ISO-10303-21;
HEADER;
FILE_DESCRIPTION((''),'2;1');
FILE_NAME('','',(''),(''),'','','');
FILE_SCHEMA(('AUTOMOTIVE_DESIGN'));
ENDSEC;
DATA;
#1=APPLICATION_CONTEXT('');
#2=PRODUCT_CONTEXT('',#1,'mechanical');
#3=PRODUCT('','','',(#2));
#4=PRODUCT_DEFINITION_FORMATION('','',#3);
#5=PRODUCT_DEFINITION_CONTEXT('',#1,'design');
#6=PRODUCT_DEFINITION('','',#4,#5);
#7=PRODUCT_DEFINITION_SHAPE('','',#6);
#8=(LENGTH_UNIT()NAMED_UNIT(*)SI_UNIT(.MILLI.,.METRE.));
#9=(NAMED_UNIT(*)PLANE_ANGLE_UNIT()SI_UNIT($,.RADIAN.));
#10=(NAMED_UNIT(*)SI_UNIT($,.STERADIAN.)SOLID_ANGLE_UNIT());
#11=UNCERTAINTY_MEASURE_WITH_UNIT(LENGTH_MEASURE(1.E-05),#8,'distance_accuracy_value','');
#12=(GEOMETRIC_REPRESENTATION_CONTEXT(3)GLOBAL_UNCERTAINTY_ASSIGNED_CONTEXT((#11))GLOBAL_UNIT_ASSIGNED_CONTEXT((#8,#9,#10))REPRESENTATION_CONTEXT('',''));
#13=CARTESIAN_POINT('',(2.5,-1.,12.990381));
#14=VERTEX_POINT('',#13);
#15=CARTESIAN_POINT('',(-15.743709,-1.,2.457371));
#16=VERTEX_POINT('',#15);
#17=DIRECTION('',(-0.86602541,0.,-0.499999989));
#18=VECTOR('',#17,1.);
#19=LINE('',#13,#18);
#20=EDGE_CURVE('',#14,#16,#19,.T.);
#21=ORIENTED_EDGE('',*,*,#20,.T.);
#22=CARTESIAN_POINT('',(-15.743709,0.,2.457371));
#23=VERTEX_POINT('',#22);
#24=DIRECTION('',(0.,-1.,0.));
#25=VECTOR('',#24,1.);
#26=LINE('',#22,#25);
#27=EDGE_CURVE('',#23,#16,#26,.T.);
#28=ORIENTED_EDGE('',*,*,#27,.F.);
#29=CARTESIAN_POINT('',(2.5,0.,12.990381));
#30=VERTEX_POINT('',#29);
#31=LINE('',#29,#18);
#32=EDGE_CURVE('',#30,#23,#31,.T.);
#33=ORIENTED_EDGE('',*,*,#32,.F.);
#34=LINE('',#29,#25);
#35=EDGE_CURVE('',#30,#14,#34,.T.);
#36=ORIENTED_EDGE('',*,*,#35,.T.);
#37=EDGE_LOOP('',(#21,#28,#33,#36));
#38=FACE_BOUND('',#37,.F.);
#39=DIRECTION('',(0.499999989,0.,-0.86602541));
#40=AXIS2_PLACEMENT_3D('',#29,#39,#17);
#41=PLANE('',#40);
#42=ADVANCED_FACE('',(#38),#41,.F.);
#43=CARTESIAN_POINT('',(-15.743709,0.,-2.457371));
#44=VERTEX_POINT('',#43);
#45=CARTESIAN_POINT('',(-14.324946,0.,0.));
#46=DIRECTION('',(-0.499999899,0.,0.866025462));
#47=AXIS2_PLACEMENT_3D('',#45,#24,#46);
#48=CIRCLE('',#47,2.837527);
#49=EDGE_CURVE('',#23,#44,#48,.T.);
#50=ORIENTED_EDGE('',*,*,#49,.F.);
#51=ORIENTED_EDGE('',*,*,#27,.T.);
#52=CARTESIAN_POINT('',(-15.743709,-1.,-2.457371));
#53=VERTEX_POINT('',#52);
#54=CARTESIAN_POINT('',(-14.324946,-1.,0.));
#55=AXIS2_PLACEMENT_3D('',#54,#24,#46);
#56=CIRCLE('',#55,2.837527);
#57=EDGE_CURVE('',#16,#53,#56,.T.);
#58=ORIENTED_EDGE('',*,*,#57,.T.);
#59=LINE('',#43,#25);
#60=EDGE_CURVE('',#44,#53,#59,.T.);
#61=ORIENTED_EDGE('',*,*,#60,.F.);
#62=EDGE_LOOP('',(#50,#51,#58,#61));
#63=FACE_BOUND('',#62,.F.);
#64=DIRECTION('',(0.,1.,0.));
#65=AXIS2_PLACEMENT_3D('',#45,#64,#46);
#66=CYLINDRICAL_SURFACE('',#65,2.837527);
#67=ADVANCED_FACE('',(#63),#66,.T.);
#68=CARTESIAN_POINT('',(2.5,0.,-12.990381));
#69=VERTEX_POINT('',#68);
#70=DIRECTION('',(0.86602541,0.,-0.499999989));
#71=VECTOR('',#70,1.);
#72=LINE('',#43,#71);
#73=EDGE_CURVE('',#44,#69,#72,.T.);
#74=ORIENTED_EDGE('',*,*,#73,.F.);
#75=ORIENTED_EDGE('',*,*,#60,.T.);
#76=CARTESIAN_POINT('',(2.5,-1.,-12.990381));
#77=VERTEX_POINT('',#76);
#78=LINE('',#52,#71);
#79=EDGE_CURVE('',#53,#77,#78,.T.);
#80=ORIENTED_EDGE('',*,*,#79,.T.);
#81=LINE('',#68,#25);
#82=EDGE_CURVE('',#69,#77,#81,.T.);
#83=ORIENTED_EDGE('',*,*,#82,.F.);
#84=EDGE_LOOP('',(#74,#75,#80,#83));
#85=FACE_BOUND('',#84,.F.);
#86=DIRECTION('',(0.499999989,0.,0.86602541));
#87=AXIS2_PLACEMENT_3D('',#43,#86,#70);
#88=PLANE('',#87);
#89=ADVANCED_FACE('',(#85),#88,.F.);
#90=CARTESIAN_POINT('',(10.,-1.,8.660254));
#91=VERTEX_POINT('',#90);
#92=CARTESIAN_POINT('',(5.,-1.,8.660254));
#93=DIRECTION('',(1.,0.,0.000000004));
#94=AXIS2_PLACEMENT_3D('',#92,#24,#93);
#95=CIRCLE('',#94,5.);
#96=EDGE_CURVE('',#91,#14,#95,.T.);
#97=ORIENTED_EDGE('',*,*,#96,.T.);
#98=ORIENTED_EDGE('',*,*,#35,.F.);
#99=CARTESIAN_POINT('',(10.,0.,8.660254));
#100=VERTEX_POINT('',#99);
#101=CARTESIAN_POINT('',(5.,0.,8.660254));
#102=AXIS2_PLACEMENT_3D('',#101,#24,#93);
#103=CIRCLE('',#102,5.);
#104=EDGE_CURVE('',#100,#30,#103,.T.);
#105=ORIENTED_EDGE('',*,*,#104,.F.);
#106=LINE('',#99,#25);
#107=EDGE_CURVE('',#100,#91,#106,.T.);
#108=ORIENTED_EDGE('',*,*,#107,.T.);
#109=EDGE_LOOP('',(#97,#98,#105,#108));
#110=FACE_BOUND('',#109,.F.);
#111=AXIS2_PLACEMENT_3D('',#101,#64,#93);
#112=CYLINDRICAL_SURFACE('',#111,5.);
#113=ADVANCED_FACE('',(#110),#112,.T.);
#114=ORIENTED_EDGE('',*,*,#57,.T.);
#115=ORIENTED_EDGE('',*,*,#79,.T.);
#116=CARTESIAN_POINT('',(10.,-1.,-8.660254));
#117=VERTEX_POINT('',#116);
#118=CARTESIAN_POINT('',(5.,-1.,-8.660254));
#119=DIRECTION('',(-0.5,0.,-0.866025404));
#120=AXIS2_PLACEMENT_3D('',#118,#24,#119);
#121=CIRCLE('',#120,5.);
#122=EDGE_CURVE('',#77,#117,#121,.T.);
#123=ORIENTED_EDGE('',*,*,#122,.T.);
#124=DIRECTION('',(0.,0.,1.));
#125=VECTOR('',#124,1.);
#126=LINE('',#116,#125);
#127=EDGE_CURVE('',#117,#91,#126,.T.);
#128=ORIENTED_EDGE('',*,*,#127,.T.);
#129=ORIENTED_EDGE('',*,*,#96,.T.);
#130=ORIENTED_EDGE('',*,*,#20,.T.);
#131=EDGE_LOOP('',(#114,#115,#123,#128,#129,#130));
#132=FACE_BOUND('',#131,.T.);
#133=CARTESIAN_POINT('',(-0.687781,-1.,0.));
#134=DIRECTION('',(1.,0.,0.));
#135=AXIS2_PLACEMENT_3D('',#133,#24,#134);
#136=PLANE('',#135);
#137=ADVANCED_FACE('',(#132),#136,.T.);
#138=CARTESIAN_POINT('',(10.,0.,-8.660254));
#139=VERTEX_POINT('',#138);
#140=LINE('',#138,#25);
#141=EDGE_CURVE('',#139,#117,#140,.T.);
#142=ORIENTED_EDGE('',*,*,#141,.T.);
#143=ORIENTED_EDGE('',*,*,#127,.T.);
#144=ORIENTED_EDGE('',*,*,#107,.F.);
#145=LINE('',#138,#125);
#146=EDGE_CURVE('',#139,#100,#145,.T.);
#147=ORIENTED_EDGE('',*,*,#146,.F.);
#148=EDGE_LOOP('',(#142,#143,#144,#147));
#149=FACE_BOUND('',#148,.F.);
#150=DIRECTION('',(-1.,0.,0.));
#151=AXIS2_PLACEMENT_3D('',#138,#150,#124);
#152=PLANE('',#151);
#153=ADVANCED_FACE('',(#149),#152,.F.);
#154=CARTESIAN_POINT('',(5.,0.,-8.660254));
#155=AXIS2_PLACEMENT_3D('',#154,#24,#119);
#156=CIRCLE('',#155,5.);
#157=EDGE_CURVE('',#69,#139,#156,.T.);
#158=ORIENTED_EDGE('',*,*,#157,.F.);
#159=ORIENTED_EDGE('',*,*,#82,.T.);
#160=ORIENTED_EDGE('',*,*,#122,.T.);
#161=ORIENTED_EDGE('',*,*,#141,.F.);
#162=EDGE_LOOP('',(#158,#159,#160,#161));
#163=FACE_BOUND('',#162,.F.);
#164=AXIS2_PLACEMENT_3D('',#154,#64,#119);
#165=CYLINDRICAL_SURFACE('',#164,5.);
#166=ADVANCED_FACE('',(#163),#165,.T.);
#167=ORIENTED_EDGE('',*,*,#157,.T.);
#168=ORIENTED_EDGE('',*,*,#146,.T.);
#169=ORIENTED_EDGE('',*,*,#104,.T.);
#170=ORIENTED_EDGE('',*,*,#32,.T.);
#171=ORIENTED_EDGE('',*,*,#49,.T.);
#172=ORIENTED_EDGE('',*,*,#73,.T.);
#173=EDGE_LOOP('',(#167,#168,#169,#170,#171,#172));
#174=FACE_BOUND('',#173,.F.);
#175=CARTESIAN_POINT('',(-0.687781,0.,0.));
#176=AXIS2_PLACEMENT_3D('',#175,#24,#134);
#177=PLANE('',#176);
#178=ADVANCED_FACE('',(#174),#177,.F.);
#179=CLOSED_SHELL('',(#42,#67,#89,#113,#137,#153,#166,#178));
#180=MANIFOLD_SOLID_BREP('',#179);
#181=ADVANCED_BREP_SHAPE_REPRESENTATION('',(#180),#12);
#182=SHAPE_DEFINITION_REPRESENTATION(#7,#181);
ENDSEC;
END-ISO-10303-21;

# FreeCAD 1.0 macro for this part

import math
import FreeCAD as App
import Part
import Sketcher

V = App.Vector
Q = App.Units.Quantity

doc = App.newDocument("Part")
params = doc.addObject("Spreadsheet::Sheet", "Params")
for row, (alias, value) in enumerate([
    ("sketch1_radius", "5 mm"),
    ("pad1_length", "1 mm"),
], start=1):
    params.set(f"A{row}", alias)
    params.set(f"B{row}", "=" + value)
    params.setAlias(f"B{row}", alias)

body = doc.addObject("PartDesign::Body", "Body")

# Sketch on XZ plane
sketch1 = body.newObject("Sketcher::SketchObject", "Sketch")
sketch1.AttachmentSupport = (doc.getObject("XZ_Plane"), [""])
sketch1.MapMode = "FlatFace"
sketch1.addGeometry([
    Part.LineSegment(V(10, -8.660254, 0), V(10, 8.660254, 0)),  # 0
    Part.ArcOfCircle(Part.Circle(V(5, 8.660254, 0), V(0, 0, 1), 5), math.radians(0), math.radians(120)),  # 1
    Part.LineSegment(V(2.5, 12.990381, 0), V(-15.743709, 2.457371, 0)),  # 2
    Part.ArcOfCircle(Part.Circle(V(-14.324946, 0, 0), V(0, 0, 1), 2.837527), math.radians(119.999993), math.radians(240.000007)),  # 3
    Part.LineSegment(V(-15.743709, -2.457371, 0), V(2.5, -12.990381, 0)),  # 4
    Part.ArcOfCircle(Part.Circle(V(5, -8.660254, 0), V(0, 0, 1), 5), math.radians(-120), math.radians(0)),  # 5
], False)
sketch1.addConstraint([
    Sketcher.Constraint("Tangent", 0, 2, 1, 1),
    Sketcher.Constraint("Tangent", 1, 2, 2, 1),
    Sketcher.Constraint("Tangent", 2, 2, 3, 1),
    Sketcher.Constraint("Tangent", 3, 2, 4, 1),
    Sketcher.Constraint("Tangent", 4, 2, 5, 1),
    Sketcher.Constraint("Tangent", 5, 2, 0, 1),
    Sketcher.Constraint("Vertical", 0),
    Sketcher.Constraint("Equal", 1, 5),
    Sketcher.Constraint("Symmetric", 2, 2, 3, 2, -1),
    Sketcher.Constraint("Radius", 1, 5.0),
    Sketcher.Constraint("Angle", 2, Q("-150.000001 deg")),
    Sketcher.Constraint("DistanceX", -1, 1, 1, 3, 5.0),
    Sketcher.Constraint("Radius", 3, 2.837527),
    Sketcher.Constraint("DistanceY", 0, 1, 0, 2, 17.320508),
])
sketch1.setExpression("Constraints[9]", "Params.sketch1_radius")
pad1 = body.newObject("PartDesign::Pad", "Pad")
pad1.Profile = sketch1
pad1.setExpression("Length", "Params.pad1_length")

doc.recompute()
